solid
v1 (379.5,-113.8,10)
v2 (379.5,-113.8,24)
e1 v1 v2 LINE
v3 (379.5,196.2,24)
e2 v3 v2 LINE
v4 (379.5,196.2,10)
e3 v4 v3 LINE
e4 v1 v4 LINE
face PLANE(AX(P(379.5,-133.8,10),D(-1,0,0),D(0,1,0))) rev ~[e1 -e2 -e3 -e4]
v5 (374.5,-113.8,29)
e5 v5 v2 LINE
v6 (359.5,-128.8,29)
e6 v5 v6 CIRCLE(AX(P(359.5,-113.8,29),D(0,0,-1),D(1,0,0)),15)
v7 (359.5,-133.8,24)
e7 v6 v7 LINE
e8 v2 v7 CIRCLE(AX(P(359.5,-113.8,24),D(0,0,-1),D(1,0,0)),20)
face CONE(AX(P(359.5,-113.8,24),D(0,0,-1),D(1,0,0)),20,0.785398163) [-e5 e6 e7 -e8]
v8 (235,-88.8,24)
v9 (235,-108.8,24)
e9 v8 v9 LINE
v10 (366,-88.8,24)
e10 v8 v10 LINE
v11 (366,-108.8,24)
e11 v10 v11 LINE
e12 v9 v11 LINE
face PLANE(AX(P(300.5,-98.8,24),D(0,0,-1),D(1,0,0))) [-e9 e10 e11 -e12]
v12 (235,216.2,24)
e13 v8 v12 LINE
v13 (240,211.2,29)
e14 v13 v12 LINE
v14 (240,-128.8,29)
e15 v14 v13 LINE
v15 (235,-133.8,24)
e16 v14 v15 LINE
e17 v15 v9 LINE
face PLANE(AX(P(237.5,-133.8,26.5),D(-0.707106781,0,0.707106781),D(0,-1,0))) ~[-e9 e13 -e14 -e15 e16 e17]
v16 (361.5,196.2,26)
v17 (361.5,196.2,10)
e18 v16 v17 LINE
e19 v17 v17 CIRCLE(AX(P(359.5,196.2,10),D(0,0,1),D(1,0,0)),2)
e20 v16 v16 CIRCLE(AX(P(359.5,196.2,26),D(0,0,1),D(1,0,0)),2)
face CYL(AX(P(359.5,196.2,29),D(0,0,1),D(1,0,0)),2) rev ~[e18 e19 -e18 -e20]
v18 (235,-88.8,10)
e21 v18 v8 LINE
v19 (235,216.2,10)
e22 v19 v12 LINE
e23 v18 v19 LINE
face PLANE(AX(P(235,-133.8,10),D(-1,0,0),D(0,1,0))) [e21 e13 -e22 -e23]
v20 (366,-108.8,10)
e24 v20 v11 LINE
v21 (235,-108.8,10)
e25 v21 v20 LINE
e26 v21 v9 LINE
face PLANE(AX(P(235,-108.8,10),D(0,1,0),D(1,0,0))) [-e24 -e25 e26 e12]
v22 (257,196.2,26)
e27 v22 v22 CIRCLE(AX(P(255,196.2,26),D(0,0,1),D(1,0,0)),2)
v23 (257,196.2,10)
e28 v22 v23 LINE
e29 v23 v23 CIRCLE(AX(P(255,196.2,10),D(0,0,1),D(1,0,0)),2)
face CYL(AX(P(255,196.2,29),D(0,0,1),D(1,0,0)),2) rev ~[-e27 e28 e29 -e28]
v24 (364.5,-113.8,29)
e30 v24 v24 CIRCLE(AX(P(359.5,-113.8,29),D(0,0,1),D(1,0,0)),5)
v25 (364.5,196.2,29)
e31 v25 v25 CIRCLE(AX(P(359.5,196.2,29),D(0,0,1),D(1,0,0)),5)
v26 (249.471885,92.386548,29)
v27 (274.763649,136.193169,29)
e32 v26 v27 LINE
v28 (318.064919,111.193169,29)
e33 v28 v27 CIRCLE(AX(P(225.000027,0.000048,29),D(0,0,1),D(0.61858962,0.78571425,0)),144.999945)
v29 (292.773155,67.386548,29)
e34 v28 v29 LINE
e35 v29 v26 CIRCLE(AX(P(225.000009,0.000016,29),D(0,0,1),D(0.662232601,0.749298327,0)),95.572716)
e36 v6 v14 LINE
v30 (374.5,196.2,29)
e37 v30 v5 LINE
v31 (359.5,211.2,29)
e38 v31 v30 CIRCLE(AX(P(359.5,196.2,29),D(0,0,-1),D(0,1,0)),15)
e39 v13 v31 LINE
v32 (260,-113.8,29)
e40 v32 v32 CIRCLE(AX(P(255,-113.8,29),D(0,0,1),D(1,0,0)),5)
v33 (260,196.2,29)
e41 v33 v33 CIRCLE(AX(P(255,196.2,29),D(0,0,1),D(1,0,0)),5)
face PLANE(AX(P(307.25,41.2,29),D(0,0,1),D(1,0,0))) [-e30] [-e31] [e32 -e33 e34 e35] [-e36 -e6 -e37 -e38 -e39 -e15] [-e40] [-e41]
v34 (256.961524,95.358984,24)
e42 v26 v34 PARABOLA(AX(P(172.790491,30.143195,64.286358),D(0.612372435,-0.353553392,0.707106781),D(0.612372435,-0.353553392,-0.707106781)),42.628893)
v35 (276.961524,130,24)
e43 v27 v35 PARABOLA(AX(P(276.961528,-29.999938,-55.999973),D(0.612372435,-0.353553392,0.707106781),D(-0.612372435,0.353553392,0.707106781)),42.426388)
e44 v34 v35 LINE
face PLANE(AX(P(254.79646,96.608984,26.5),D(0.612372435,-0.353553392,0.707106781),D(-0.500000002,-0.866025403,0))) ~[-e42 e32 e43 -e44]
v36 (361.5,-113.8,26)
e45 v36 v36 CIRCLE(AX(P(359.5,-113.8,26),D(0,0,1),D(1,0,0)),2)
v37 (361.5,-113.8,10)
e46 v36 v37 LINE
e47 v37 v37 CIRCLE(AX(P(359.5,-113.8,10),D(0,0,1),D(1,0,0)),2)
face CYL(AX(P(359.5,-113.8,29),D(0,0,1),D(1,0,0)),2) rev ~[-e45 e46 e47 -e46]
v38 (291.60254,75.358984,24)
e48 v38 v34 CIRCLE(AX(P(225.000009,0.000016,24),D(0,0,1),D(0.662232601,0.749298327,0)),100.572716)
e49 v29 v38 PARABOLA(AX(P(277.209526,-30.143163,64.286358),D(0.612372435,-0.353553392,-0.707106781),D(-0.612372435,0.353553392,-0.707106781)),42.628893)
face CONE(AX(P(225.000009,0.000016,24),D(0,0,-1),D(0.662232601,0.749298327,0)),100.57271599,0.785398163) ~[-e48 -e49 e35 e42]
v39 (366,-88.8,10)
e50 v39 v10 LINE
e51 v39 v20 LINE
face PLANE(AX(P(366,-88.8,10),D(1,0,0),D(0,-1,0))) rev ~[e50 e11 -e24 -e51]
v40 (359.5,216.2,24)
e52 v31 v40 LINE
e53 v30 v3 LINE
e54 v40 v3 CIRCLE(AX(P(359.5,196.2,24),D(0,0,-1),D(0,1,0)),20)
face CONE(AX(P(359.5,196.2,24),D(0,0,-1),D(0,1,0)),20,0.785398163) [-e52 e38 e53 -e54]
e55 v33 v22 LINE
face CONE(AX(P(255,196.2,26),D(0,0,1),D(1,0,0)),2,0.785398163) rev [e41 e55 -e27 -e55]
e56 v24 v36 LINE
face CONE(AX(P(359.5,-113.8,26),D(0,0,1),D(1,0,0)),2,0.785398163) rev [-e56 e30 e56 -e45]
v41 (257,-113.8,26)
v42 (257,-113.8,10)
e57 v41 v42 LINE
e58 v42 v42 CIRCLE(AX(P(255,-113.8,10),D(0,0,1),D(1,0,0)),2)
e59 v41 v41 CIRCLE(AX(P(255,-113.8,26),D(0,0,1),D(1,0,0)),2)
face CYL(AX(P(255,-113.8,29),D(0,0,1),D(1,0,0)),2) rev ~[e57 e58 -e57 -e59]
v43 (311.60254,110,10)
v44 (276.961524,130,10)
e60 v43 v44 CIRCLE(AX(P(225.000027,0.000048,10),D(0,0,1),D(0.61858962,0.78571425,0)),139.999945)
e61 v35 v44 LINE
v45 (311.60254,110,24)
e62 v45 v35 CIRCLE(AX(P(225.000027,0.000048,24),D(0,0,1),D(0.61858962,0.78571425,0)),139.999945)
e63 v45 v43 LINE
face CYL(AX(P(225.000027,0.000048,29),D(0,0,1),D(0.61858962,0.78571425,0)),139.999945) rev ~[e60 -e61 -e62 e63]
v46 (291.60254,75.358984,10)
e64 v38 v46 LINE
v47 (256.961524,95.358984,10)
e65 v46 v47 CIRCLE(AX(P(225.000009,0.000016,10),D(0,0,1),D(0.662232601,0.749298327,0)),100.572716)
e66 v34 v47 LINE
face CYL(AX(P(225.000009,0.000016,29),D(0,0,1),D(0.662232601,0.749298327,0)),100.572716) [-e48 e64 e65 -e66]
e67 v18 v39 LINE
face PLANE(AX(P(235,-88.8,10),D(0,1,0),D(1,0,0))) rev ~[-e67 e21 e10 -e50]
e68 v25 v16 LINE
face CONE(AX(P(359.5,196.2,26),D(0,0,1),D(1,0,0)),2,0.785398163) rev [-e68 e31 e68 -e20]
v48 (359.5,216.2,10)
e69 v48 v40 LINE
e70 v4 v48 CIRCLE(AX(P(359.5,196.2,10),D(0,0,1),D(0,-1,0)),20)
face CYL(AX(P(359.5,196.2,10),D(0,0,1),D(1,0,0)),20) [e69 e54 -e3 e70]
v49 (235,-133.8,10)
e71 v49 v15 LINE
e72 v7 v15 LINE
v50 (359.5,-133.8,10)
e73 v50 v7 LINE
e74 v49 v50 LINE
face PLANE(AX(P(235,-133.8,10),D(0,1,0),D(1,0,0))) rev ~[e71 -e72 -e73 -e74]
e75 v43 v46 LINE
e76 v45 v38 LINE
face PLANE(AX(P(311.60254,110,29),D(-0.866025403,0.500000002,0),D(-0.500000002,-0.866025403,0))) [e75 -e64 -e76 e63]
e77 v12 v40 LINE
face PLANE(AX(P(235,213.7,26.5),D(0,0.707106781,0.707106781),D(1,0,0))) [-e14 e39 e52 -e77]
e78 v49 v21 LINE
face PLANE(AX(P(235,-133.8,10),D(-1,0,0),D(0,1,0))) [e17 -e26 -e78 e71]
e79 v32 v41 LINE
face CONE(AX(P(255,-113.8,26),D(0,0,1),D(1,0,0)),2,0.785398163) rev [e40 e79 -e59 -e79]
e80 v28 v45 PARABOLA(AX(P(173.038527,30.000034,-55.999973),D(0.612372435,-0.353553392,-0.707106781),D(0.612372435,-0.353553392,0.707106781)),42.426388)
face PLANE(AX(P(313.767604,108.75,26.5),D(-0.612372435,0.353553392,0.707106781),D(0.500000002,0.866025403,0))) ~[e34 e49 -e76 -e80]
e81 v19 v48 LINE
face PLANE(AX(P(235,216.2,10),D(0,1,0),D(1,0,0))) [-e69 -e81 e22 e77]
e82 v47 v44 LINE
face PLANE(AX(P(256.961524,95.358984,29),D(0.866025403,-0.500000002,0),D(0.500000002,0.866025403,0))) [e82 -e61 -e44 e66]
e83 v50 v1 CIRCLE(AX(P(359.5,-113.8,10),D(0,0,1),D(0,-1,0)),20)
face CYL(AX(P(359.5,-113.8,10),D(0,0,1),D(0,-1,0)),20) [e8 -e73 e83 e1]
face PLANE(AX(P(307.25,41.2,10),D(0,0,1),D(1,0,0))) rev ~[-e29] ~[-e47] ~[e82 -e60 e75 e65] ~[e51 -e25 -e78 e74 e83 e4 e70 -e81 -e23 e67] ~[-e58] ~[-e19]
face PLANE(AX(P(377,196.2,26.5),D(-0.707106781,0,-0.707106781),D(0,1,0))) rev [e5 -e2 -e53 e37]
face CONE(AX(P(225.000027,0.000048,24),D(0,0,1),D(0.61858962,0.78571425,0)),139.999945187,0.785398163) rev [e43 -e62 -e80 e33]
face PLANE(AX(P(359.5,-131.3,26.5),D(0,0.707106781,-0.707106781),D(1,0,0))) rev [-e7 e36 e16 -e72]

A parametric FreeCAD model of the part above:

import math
import FreeCAD as App
import Part
import Sketcher
from FreeCAD import Vector
Q = App.Units.Quantity


def edges_at(feature, points):
    """Names of the edges that pass closest to the given points."""
    edges = feature.Shape.Edges
    near = lambda p: min(range(len(edges)), key=lambda i: edges[i].distToShape(Part.Vertex(*p))[0])
    return sorted({f"Edge{near(p) + 1}" for p in points})

doc = App.newDocument("Part")
body = doc.addObject("PartDesign::Body", "Body")

# Sketch on XY plane
sketch1 = doc.addObject("Sketcher::SketchObject", "Sketch")
body.addObject(sketch1)
sketch1.AttachmentSupport = (doc.XY_Plane, [""])
sketch1.MapMode = "FlatFace"
sketch1.addGeometry(Part.LineSegment(Vector(235, 216, 0), Vector(235, -134, 0)), False)
sketch1.addGeometry(Part.LineSegment(Vector(235, -134, 0), Vector(380, -134, 0)), False)
sketch1.addGeometry(Part.LineSegment(Vector(380, -134, 0), Vector(380, 216, 0)), False)
sketch1.addGeometry(Part.LineSegment(Vector(380, 216, 0), Vector(235, 216, 0)), False)
sketch1.addConstraint(Sketcher.Constraint("Coincident", 0, 2, 1, 1))
sketch1.addConstraint(Sketcher.Constraint("Coincident", 1, 2, 2, 1))
sketch1.addConstraint(Sketcher.Constraint("Coincident", 2, 2, 3, 1))
sketch1.addConstraint(Sketcher.Constraint("Coincident", 3, 2, 0, 1))
sketch1.addConstraint(Sketcher.Constraint("Vertical", 0))
sketch1.addConstraint(Sketcher.Constraint("Horizontal", 1))
sketch1.addConstraint(Sketcher.Constraint("Vertical", 2))
sketch1.addConstraint(Sketcher.Constraint("Horizontal", 3))
sketch1.addConstraint(Sketcher.Constraint("DistanceY", 0, 2, 0, 1, Q("350 mm")))
sketch1.addConstraint(Sketcher.Constraint("DistanceX", 1, 1, 1, 2, Q("144.5 mm")))
sketch1.addConstraint(Sketcher.Constraint("DistanceX", -1, 1, 0, 2, Q("235 mm")))
sketch1.addConstraint(Sketcher.Constraint("DistanceY", 0, 2, -1, 1, Q("133.8 mm")))
pad1 = doc.addObject("PartDesign::Pad", "Pad")
body.addObject(pad1)
pad1.Profile = sketch1
pad1.Length = 19
doc.recompute()

fillet = doc.addObject("PartDesign::Fillet", "Fillet")
body.addObject(fillet)
fillet.Base = (pad1, edges_at(pad1, [(379.5, 216.2, 9.5), (379.5, -133.8, 9.5)]))
fillet.Radius = 20

# Sketch on XY plane
sketch2 = doc.addObject("Sketcher::SketchObject", "Sketch001")
body.addObject(sketch2)
sketch2.AttachmentSupport = (doc.XY_Plane, [""])
sketch2.MapMode = "FlatFace"
sketch2.AttachmentOffset = App.Placement(Vector(0, 0, 19), App.Rotation())
sketch2.addGeometry(Part.Circle(Vector(359.5, 196.2, 0), Vector(0, 0, 1), 2), False)
sketch2.addGeometry(Part.Circle(Vector(359.5, -113.8, 0), Vector(0, 0, 1), 2), False)
sketch2.addGeometry(Part.Circle(Vector(255, -113.8, 0), Vector(0, 0, 1), 2), False)
sketch2.addGeometry(Part.Circle(Vector(255, 196.2, 0), Vector(0, 0, 1), 2), False)
sketch2.addConstraint(Sketcher.Constraint("Equal", 0, 1))
sketch2.addConstraint(Sketcher.Constraint("Equal", 1, 2))
sketch2.addConstraint(Sketcher.Constraint("Equal", 2, 3))
sketch2.addConstraint(Sketcher.Constraint("Horizontal", 1, 3, 2, 3))
sketch2.addConstraint(Sketcher.Constraint("Horizontal", 0, 3, 3, 3))
sketch2.addConstraint(Sketcher.Constraint("Vertical", 0, 3, 1, 3))
sketch2.addConstraint(Sketcher.Constraint("Vertical", 2, 3, 3, 3))
sketch2.addConstraint(Sketcher.Constraint("Diameter", 0, Q("4 mm")))
sketch2.addConstraint(Sketcher.Constraint("DistanceX", -1, 1, 2, 3, Q("255 mm")))
sketch2.addConstraint(Sketcher.Constraint("DistanceY", 1, 3, 0, 3, Q("310 mm")))
sketch2.addConstraint(Sketcher.Constraint("DistanceX", -1, 1, 0, 3, Q("359.5 mm")))
sketch2.addConstraint(Sketcher.Constraint("DistanceY", -1, 1, 0, 3, Q("196.2 mm")))
pocket1 = doc.addObject("PartDesign::Pocket", "Pocket")
body.addObject(pocket1)
pocket1.Profile = sketch2
pocket1.Type = "ThroughAll"
doc.recompute()

chamfer = doc.addObject("PartDesign::Chamfer", "Chamfer")
body.addObject(chamfer)
chamfer.Base = (pocket1, edges_at(pocket1, [(297.25, 216.2, 19), (235, 41.2, 19)]))
chamfer.Size = 5

# Sketch on XY plane
sketch3 = doc.addObject("Sketcher::SketchObject", "Sketch002")
body.addObject(sketch3)
sketch3.AttachmentSupport = (doc.XY_Plane, [""])
sketch3.MapMode = "FlatFace"
sketch3.AttachmentOffset = App.Placement(Vector(0, 0, 19), App.Rotation())
sketch3.addGeometry(Part.LineSegment(Vector(277, 130, 0), Vector(257, 95, 0)), False)
sketch3.addGeometry(Part.ArcOfCircle(Part.Circle(Vector(225, 0, 0), Vector(0, 0, 1), 101), math.radians(49), math.radians(71)), False)
sketch3.addGeometry(Part.LineSegment(Vector(292, 75, 0), Vector(312, 110, 0)), False)
sketch3.addGeometry(Part.ArcOfCircle(Part.Circle(Vector(225, 0, 0), Vector(0, 0, 1), 140), math.radians(51.79), math.radians(68.21)), False)
sketch3.addConstraint(Sketcher.Constraint("Coincident", 0, 2, 1, 2))
sketch3.addConstraint(Sketcher.Constraint("Coincident", 1, 1, 2, 1))
sketch3.addConstraint(Sketcher.Constraint("Coincident", 2, 2, 3, 1))
sketch3.addConstraint(Sketcher.Constraint("Coincident", 3, 2, 0, 1))
sketch3.addConstraint(Sketcher.Constraint("Parallel", 0, 2))
sketch3.addConstraint(Sketcher.Constraint("Equal", 0, 2))
sketch3.addConstraint(Sketcher.Constraint("Angle", 0, Q("-120 deg")))
sketch3.addConstraint(Sketcher.Constraint("Distance", 0, Q("40 mm")))
sketch3.addConstraint(Sketcher.Constraint("DistanceY", -1, 1, 2, 2, Q("110 mm")))
sketch3.addConstraint(Sketcher.Constraint("DistanceY", -1, 1, 3, 2, Q("130 mm")))
sketch3.addConstraint(Sketcher.Constraint("Radius", 1, Q("100.572716 mm")))
sketch3.addConstraint(Sketcher.Constraint("Radius", 3, Q("139.999945 mm")))
sketch3.addConstraint(Sketcher.Constraint("DistanceX", -1, 1, 1, 3, Q("225.000009 mm")))
sketch3.addConstraint(Sketcher.Constraint("DistanceX", -1, 1, 1, 1, Q("291.60254 mm")))
pocket2 = doc.addObject("PartDesign::Pocket", "Pocket001")
body.addObject(pocket2)
pocket2.Profile = sketch3
pocket2.Type = "ThroughAll"
doc.recompute()

chamfer2 = doc.addObject("PartDesign::Chamfer", "Chamfer001")
body.addObject(chamfer2)
chamfer2.Base = (pocket2, edges_at(pocket2, [
    (295, 121.244, 19),
    (266.962, 112.679, 19),
    (275.286, 87.099, 19),
    (301.603, 92.679, 19),
]))
chamfer2.Size = 5
doc.recompute()

chamfer3 = doc.addObject("PartDesign::Chamfer", "Chamfer002")
body.addObject(chamfer3)
chamfer3.Base = (chamfer2, edges_at(chamfer2, [
    (253, 196.2, 19),
    (357.5, 196.2, 19),
    (357.5, -113.8, 19),
    (253, -113.8, 19),
]))
chamfer3.Size = 3

# Sketch on XY plane
sketch4 = doc.addObject("Sketcher::SketchObject", "Sketch003")
body.addObject(sketch4)
sketch4.AttachmentSupport = (doc.XY_Plane, [""])
sketch4.MapMode = "FlatFace"
sketch4.addGeometry(Part.LineSegment(Vector(235, -109, 0), Vector(235, -89, 0)), False)
sketch4.addGeometry(Part.LineSegment(Vector(235, -89, 0), Vector(366, -89, 0)), False)
sketch4.addGeometry(Part.LineSegment(Vector(366, -89, 0), Vector(366, -109, 0)), False)
sketch4.addGeometry(Part.LineSegment(Vector(366, -109, 0), Vector(235, -109, 0)), False)
sketch4.addConstraint(Sketcher.Constraint("Coincident", 0, 2, 1, 1))
sketch4.addConstraint(Sketcher.Constraint("Coincident", 1, 2, 2, 1))
sketch4.addConstraint(Sketcher.Constraint("Coincident", 2, 2, 3, 1))
sketch4.addConstraint(Sketcher.Constraint("Coincident", 3, 2, 0, 1))
sketch4.addConstraint(Sketcher.Constraint("Vertical", 0))
sketch4.addConstraint(Sketcher.Constraint("Horizontal", 1))
sketch4.addConstraint(Sketcher.Constraint("Vertical", 2))
sketch4.addConstraint(Sketcher.Constraint("Horizontal", 3))
sketch4.addConstraint(Sketcher.Constraint("DistanceX", 1, 1, 1, 2, Q("131 mm")))
sketch4.addConstraint(Sketcher.Constraint("DistanceY", 0, 1, 0, 2, Q("20 mm")))
sketch4.addConstraint(Sketcher.Constraint("DistanceX", -1, 1, 0, 2, Q("235 mm")))
sketch4.addConstraint(Sketcher.Constraint("DistanceY", 0, 2, -1, 1, Q("88.8 mm")))
pocket3 = doc.addObject("PartDesign::Pocket", "Pocket002")
body.addObject(pocket3)
pocket3.Profile = sketch4
pocket3.Length = 14
pocket3.Reversed = True
body2 = doc.addObject("PartDesign::Body", "Body001")
doc.recompute()

body.Placement = App.Placement(Vector(0, 0, 10), App.Rotation(Vector(0, 0, 1), 0))
boolean = doc.addObject("PartDesign::Boolean", "Boolean")
body2.addObject(boolean)
boolean.Type = "Fuse"
boolean.addObjects([body])

doc.recompute()
